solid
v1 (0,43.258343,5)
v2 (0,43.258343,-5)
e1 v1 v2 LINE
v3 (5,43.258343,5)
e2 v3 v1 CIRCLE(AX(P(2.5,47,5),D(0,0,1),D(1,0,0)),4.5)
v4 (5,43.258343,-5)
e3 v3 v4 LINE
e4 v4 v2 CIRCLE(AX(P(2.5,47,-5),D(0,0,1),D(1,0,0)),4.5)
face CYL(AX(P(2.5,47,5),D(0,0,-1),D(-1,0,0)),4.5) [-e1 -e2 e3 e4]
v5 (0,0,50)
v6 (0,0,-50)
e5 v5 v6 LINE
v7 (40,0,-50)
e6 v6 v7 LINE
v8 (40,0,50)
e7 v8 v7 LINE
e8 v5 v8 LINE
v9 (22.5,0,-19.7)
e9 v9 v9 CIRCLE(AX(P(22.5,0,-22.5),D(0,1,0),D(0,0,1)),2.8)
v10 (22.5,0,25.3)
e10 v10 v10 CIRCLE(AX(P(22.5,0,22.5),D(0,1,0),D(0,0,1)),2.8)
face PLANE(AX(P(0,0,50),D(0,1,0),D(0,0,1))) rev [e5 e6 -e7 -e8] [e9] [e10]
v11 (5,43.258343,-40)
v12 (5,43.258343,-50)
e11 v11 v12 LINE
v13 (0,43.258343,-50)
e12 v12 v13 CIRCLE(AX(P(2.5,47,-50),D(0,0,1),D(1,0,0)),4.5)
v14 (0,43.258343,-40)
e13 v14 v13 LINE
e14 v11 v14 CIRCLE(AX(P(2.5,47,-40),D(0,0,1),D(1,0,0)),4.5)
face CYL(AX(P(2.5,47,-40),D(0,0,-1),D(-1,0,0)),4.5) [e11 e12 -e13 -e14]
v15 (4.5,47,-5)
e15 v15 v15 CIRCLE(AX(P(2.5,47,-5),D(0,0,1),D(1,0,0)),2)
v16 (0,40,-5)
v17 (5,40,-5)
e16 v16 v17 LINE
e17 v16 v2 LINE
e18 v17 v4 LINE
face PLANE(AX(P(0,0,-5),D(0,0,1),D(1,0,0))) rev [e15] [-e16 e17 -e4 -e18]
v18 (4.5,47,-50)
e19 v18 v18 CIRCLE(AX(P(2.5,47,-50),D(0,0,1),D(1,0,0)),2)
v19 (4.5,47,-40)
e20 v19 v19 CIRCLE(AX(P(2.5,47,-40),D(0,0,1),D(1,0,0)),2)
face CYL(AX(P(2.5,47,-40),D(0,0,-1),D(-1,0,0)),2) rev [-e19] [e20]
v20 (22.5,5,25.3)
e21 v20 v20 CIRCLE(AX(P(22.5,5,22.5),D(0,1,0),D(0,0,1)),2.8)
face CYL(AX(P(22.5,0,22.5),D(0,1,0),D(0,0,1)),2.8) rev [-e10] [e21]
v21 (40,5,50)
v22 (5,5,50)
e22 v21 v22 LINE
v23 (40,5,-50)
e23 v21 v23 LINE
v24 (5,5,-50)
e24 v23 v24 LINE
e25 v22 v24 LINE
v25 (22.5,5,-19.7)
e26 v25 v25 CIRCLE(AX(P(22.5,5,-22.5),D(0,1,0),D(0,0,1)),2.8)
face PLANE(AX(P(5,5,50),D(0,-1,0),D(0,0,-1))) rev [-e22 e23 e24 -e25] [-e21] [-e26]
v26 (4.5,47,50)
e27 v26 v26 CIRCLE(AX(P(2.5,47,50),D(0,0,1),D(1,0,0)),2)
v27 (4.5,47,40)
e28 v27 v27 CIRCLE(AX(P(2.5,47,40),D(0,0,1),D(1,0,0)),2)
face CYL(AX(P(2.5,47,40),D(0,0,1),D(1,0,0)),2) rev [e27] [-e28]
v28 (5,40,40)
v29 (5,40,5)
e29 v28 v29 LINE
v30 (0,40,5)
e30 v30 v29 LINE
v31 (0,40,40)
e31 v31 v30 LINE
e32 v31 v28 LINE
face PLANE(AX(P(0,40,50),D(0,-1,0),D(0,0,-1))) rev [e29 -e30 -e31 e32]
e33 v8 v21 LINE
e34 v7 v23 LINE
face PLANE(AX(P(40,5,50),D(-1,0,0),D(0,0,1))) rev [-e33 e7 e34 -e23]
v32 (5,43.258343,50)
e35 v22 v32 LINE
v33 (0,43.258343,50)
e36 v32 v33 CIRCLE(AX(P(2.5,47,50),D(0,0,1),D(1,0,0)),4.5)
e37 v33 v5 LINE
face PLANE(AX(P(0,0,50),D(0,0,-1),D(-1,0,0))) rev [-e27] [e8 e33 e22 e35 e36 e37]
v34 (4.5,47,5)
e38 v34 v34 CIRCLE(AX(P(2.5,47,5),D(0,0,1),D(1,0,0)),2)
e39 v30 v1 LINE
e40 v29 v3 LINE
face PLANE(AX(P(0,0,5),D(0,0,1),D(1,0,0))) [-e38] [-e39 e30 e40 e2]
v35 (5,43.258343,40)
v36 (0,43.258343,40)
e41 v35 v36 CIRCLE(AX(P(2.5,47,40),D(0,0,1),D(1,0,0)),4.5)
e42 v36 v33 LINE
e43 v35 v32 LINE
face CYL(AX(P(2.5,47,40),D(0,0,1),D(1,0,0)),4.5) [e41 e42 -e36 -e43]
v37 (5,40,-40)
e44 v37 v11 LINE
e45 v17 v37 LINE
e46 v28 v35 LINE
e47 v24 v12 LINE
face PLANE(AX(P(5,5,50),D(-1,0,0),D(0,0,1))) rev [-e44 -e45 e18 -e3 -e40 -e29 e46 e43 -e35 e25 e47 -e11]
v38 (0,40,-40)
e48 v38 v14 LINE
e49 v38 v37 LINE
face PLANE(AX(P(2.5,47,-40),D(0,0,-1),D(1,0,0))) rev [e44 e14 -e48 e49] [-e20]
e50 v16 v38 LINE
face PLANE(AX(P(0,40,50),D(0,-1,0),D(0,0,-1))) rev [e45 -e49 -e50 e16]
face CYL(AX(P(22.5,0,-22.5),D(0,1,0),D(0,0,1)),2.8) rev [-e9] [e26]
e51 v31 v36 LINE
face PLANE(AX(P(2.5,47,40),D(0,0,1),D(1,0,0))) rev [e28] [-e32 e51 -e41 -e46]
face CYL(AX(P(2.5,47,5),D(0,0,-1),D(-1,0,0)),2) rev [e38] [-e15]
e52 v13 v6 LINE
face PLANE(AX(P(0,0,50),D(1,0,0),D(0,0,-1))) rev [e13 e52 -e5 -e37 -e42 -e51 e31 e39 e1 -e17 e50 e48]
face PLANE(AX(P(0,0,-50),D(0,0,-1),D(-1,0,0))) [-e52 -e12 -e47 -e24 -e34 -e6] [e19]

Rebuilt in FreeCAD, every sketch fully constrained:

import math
import FreeCAD as App
import Part
import Sketcher
Q = App.Units.Quantity

doc = App.newDocument("Part")
body = doc.addObject("PartDesign::Body", "Body")

sketch1 = body.newObject("Sketcher::SketchObject", "Sketch")
sketch1.AttachmentSupport = (doc.getObject("XY_Plane"), [""])
sketch1.MapMode = "FlatFace"
sketch1.addGeometry(Part.LineSegment(App.Vector(0, 40, 0), App.Vector(0, 0, 0)), False)
sketch1.addGeometry(Part.LineSegment(App.Vector(0, 0, 0), App.Vector(40, 0, 0)), False)
sketch1.addGeometry(Part.LineSegment(App.Vector(40, 0, 0), App.Vector(40, 5, 0)), False)
sketch1.addGeometry(Part.LineSegment(App.Vector(40, 5, 0), App.Vector(5, 5, 0)), False)
sketch1.addGeometry(Part.LineSegment(App.Vector(5, 5, 0), App.Vector(5, 40, 0)), False)
sketch1.addGeometry(Part.LineSegment(App.Vector(5, 40, 0), App.Vector(0, 40, 0)), False)
sketch1.addConstraint(Sketcher.Constraint("Coincident", 0, 2, 1, 1))
sketch1.addConstraint(Sketcher.Constraint("Coincident", 1, 2, 2, 1))
sketch1.addConstraint(Sketcher.Constraint("Coincident", 2, 2, 3, 1))
sketch1.addConstraint(Sketcher.Constraint("Coincident", 3, 2, 4, 1))
sketch1.addConstraint(Sketcher.Constraint("Coincident", 4, 2, 5, 1))
sketch1.addConstraint(Sketcher.Constraint("Coincident", 5, 2, 0, 1))
sketch1.addConstraint(Sketcher.Constraint("Vertical", 0))
sketch1.addConstraint(Sketcher.Constraint("Horizontal", 1))
sketch1.addConstraint(Sketcher.Constraint("Vertical", 2))
sketch1.addConstraint(Sketcher.Constraint("Horizontal", 3))
sketch1.addConstraint(Sketcher.Constraint("Vertical", 4))
sketch1.addConstraint(Sketcher.Constraint("Horizontal", 5))
sketch1.addConstraint(Sketcher.Constraint("Coincident", 0, 2, -1, 1))
sketch1.addConstraint(Sketcher.Constraint("Equal", 1, 0))
sketch1.addConstraint(Sketcher.Constraint("Equal", 5, 2))
sketch1.addConstraint(Sketcher.Constraint("DistanceX", 1, 1, 1, 2, Q("40 mm")))
sketch1.addConstraint(Sketcher.Constraint("DistanceX", 3, 2, 3, 1, Q("35 mm")))
pad1 = body.newObject("PartDesign::Pad", "Pad")
pad1.Profile = sketch1
pad1.Length = 100
pad1.Midplane = True

sketch2 = body.newObject("Sketcher::SketchObject", "Sketch001")
sketch2.AttachmentSupport = (doc.getObject("XY_Plane"), [""])
sketch2.MapMode = "FlatFace"
sketch2.addGeometry(Part.ArcOfCircle(Part.Circle(App.Vector(2.5, 47, 0), App.Vector(0, 0, 1), 4.5), math.radians(-56), math.radians(236)), False)
sketch2.addGeometry(Part.LineSegment(App.Vector(0, 43.3, 0), App.Vector(0, 40, 0)), False)
sketch2.addGeometry(Part.LineSegment(App.Vector(0, 40, 0), App.Vector(5, 40, 0)), False)
sketch2.addGeometry(Part.LineSegment(App.Vector(5, 40, 0), App.Vector(5, 43.3, 0)), False)
sketch2.addGeometry(Part.Circle(App.Vector(2.5, 47, 0), App.Vector(0, 0, 1), 2), False)
sketch2.addConstraint(Sketcher.Constraint("Coincident", 0, 2, 1, 1))
sketch2.addConstraint(Sketcher.Constraint("Coincident", 1, 2, 2, 1))
sketch2.addConstraint(Sketcher.Constraint("Coincident", 2, 2, 3, 1))
sketch2.addConstraint(Sketcher.Constraint("Coincident", 3, 2, 0, 1))
sketch2.addConstraint(Sketcher.Constraint("Vertical", 1))
sketch2.addConstraint(Sketcher.Constraint("Horizontal", 2))
sketch2.addConstraint(Sketcher.Constraint("Vertical", 3))
sketch2.addConstraint(Sketcher.Constraint("Coincident", 4, 3, 0, 3))
sketch2.addConstraint(Sketcher.Constraint("PointOnObject", 0, 2, -2))
sketch2.addConstraint(Sketcher.Constraint("Horizontal", 0, 2, 3, 2))
sketch2.addConstraint(Sketcher.Constraint("Diameter", 4, Q("4 mm")))
sketch2.addConstraint(Sketcher.Constraint("Radius", 0, Q("4.5 mm")))
sketch2.addConstraint(Sketcher.Constraint("DistanceX", 2, 1, 2, 2, Q("5 mm")))
sketch2.addConstraint(Sketcher.Constraint("DistanceY", -1, 1, 0, 3, Q("47 mm")))
sketch2.addConstraint(Sketcher.Constraint("DistanceY", -1, 1, 1, 2, Q("40 mm")))
pad2 = body.newObject("PartDesign::Pad", "Pad001")
pad2.Profile = sketch2
pad2.Length = 10
pad2.Midplane = True

sketch3 = body.newObject("Sketcher::SketchObject", "Sketch002")
sketch3.AttachmentSupport = (doc.getObject("XY_Plane"), [""])
sketch3.MapMode = "FlatFace"
sketch3.AttachmentOffset = App.Placement(App.Vector(0, 0, 50), App.Rotation())
sketch3.addGeometry(Part.ArcOfCircle(Part.Circle(App.Vector(2.5, 47, 0), App.Vector(0, 0, 1), 4.5), math.radians(-56), math.radians(236)), False)
sketch3.addGeometry(Part.LineSegment(App.Vector(0, 43.3, 0), App.Vector(0, 40, 0)), False)
sketch3.addGeometry(Part.LineSegment(App.Vector(0, 40, 0), App.Vector(5, 40, 0)), False)
sketch3.addGeometry(Part.LineSegment(App.Vector(5, 40, 0), App.Vector(5, 43.3, 0)), False)
sketch3.addGeometry(Part.Circle(App.Vector(2.5, 47, 0), App.Vector(0, 0, 1), 2), False)
sketch3.addConstraint(Sketcher.Constraint("Coincident", 0, 2, 1, 1))
sketch3.addConstraint(Sketcher.Constraint("Coincident", 1, 2, 2, 1))
sketch3.addConstraint(Sketcher.Constraint("Coincident", 2, 2, 3, 1))
sketch3.addConstraint(Sketcher.Constraint("Coincident", 3, 2, 0, 1))
sketch3.addConstraint(Sketcher.Constraint("Vertical", 1))
sketch3.addConstraint(Sketcher.Constraint("Horizontal", 2))
sketch3.addConstraint(Sketcher.Constraint("Vertical", 3))
sketch3.addConstraint(Sketcher.Constraint("Coincident", 4, 3, 0, 3))
sketch3.addConstraint(Sketcher.Constraint("PointOnObject", 0, 2, -2))
sketch3.addConstraint(Sketcher.Constraint("Horizontal", 0, 2, 3, 2))
sketch3.addConstraint(Sketcher.Constraint("Diameter", 4, Q("4 mm")))
sketch3.addConstraint(Sketcher.Constraint("Radius", 0, Q("4.5 mm")))
sketch3.addConstraint(Sketcher.Constraint("DistanceX", 2, 1, 2, 2, Q("5 mm")))
sketch3.addConstraint(Sketcher.Constraint("DistanceY", -1, 1, 0, 3, Q("47 mm")))
sketch3.addConstraint(Sketcher.Constraint("DistanceY", -1, 1, 1, 2, Q("40 mm")))
pad3 = body.newObject("PartDesign::Pad", "Pad002")
pad3.Profile = sketch3
pad3.Length = 10
pad3.Reversed = True
doc.recompute()

mirrored = body.newObject("PartDesign::Mirrored", "Mirrored")
mirrored.Originals = [pad3]
mirrored.MirrorPlane = (doc.getObject("XY_Plane"), [""])
body.Tip = mirrored

sketch4 = body.newObject("Sketcher::SketchObject", "Sketch003")
sketch4.AttachmentSupport = (doc.getObject("XZ_Plane"), [""])
sketch4.MapMode = "FlatFace"
sketch4.AttachmentOffset = App.Placement(App.Vector(0, 0, -5), App.Rotation())
sketch4.addGeometry(Part.Circle(App.Vector(22.5, -22.5, 0), App.Vector(0, 0, 1), 2.8), False)
sketch4.addGeometry(Part.Circle(App.Vector(22.5, 22.5, 0), App.Vector(0, 0, 1), 2.8), False)
sketch4.addConstraint(Sketcher.Constraint("Equal", 0, 1))
sketch4.addConstraint(Sketcher.Constraint("Symmetric", 0, 3, 1, 3, -1))
sketch4.addConstraint(Sketcher.Constraint("Diameter", 0, Q("5.6 mm")))
sketch4.addConstraint(Sketcher.Constraint("DistanceY", 0, 3, 1, 3, Q("45 mm")))
sketch4.addConstraint(Sketcher.Constraint("DistanceX", -1, 1, 0, 3, Q("22.5 mm")))
pocket1 = body.newObject("PartDesign::Pocket", "Pocket")
pocket1.Profile = sketch4
pocket1.Type = "ThroughAll"
pocket1.Reversed = True

doc.recompute()
